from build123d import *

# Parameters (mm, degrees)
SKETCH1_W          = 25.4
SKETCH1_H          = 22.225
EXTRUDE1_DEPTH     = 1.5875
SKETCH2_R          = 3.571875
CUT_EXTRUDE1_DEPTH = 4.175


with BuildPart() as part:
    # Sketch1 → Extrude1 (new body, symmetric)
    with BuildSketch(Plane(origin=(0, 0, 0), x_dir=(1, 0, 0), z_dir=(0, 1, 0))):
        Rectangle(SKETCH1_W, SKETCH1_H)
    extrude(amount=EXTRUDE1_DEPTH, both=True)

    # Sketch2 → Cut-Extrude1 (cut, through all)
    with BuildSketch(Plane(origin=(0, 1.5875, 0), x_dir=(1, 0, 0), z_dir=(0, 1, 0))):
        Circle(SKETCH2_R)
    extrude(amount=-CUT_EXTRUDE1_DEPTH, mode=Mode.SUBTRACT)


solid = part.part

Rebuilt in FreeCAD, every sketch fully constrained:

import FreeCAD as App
import Part
import Sketcher

V = App.Vector
Q = App.Units.Quantity

doc = App.newDocument("Part")
body = doc.addObject("PartDesign::Body", "Body")

# Sketch on XZ plane
sketch1 = doc.addObject("Sketcher::SketchObject", "Sketch")
body.addObject(sketch1)
sketch1.AttachmentSupport = (doc.XZ_Plane, [""])
sketch1.MapMode = "FlatFace"
sketch1.addGeometry(Part.LineSegment(V(-13, -11, 0), V(-13, 11, 0)), False)
sketch1.addGeometry(Part.LineSegment(V(-13, 11, 0), V(13, 11, 0)), False)
sketch1.addGeometry(Part.LineSegment(V(13, 11, 0), V(13, -11, 0)), False)
sketch1.addGeometry(Part.LineSegment(V(13, -11, 0), V(-13, -11, 0)), False)
sketch1.addConstraint(Sketcher.Constraint("Coincident", 0, 2, 1, 1))
sketch1.addConstraint(Sketcher.Constraint("Coincident", 1, 2, 2, 1))
sketch1.addConstraint(Sketcher.Constraint("Coincident", 2, 2, 3, 1))
sketch1.addConstraint(Sketcher.Constraint("Coincident", 3, 2, 0, 1))
sketch1.addConstraint(Sketcher.Constraint("Vertical", 0))
sketch1.addConstraint(Sketcher.Constraint("Horizontal", 1))
sketch1.addConstraint(Sketcher.Constraint("Vertical", 2))
sketch1.addConstraint(Sketcher.Constraint("Horizontal", 3))
sketch1.addConstraint(Sketcher.Constraint("Symmetric", 0, 2, 2, 2, -1, 1))
sketch1.addConstraint(Sketcher.Constraint("DistanceX", 1, 1, 1, 2, Q("1 in")))
sketch1.addConstraint(Sketcher.Constraint("DistanceY", 0, 1, 0, 2, Q("0.875 in")))
pad1 = doc.addObject("PartDesign::Pad", "Pad")
body.addObject(pad1)
pad1.Profile = sketch1
pad1.Length = Q("0.125 in")
pad1.Midplane = True

# Sketch on XZ plane
sketch2 = doc.addObject("Sketcher::SketchObject", "Sketch001")
body.addObject(sketch2)
sketch2.AttachmentSupport = (doc.XZ_Plane, [""])
sketch2.MapMode = "FlatFace"
sketch2.AttachmentOffset = App.Placement(V(0, 0, -0.0625 * 25.4), App.Rotation())
sketch2.addGeometry(Part.Circle(V(0, 0, 0), V(0, 0, 1), 3.6), False)
sketch2.addConstraint(Sketcher.Constraint("Coincident", 0, 3, -1, 1))
sketch2.addConstraint(Sketcher.Constraint("Diameter", 0, Q("0.28125 in")))
pocket1 = doc.addObject("PartDesign::Pocket", "Pocket")
body.addObject(pocket1)
pocket1.Profile = sketch2
pocket1.Type = "ThroughAll"
pocket1.Reversed = True

doc.recompute()
